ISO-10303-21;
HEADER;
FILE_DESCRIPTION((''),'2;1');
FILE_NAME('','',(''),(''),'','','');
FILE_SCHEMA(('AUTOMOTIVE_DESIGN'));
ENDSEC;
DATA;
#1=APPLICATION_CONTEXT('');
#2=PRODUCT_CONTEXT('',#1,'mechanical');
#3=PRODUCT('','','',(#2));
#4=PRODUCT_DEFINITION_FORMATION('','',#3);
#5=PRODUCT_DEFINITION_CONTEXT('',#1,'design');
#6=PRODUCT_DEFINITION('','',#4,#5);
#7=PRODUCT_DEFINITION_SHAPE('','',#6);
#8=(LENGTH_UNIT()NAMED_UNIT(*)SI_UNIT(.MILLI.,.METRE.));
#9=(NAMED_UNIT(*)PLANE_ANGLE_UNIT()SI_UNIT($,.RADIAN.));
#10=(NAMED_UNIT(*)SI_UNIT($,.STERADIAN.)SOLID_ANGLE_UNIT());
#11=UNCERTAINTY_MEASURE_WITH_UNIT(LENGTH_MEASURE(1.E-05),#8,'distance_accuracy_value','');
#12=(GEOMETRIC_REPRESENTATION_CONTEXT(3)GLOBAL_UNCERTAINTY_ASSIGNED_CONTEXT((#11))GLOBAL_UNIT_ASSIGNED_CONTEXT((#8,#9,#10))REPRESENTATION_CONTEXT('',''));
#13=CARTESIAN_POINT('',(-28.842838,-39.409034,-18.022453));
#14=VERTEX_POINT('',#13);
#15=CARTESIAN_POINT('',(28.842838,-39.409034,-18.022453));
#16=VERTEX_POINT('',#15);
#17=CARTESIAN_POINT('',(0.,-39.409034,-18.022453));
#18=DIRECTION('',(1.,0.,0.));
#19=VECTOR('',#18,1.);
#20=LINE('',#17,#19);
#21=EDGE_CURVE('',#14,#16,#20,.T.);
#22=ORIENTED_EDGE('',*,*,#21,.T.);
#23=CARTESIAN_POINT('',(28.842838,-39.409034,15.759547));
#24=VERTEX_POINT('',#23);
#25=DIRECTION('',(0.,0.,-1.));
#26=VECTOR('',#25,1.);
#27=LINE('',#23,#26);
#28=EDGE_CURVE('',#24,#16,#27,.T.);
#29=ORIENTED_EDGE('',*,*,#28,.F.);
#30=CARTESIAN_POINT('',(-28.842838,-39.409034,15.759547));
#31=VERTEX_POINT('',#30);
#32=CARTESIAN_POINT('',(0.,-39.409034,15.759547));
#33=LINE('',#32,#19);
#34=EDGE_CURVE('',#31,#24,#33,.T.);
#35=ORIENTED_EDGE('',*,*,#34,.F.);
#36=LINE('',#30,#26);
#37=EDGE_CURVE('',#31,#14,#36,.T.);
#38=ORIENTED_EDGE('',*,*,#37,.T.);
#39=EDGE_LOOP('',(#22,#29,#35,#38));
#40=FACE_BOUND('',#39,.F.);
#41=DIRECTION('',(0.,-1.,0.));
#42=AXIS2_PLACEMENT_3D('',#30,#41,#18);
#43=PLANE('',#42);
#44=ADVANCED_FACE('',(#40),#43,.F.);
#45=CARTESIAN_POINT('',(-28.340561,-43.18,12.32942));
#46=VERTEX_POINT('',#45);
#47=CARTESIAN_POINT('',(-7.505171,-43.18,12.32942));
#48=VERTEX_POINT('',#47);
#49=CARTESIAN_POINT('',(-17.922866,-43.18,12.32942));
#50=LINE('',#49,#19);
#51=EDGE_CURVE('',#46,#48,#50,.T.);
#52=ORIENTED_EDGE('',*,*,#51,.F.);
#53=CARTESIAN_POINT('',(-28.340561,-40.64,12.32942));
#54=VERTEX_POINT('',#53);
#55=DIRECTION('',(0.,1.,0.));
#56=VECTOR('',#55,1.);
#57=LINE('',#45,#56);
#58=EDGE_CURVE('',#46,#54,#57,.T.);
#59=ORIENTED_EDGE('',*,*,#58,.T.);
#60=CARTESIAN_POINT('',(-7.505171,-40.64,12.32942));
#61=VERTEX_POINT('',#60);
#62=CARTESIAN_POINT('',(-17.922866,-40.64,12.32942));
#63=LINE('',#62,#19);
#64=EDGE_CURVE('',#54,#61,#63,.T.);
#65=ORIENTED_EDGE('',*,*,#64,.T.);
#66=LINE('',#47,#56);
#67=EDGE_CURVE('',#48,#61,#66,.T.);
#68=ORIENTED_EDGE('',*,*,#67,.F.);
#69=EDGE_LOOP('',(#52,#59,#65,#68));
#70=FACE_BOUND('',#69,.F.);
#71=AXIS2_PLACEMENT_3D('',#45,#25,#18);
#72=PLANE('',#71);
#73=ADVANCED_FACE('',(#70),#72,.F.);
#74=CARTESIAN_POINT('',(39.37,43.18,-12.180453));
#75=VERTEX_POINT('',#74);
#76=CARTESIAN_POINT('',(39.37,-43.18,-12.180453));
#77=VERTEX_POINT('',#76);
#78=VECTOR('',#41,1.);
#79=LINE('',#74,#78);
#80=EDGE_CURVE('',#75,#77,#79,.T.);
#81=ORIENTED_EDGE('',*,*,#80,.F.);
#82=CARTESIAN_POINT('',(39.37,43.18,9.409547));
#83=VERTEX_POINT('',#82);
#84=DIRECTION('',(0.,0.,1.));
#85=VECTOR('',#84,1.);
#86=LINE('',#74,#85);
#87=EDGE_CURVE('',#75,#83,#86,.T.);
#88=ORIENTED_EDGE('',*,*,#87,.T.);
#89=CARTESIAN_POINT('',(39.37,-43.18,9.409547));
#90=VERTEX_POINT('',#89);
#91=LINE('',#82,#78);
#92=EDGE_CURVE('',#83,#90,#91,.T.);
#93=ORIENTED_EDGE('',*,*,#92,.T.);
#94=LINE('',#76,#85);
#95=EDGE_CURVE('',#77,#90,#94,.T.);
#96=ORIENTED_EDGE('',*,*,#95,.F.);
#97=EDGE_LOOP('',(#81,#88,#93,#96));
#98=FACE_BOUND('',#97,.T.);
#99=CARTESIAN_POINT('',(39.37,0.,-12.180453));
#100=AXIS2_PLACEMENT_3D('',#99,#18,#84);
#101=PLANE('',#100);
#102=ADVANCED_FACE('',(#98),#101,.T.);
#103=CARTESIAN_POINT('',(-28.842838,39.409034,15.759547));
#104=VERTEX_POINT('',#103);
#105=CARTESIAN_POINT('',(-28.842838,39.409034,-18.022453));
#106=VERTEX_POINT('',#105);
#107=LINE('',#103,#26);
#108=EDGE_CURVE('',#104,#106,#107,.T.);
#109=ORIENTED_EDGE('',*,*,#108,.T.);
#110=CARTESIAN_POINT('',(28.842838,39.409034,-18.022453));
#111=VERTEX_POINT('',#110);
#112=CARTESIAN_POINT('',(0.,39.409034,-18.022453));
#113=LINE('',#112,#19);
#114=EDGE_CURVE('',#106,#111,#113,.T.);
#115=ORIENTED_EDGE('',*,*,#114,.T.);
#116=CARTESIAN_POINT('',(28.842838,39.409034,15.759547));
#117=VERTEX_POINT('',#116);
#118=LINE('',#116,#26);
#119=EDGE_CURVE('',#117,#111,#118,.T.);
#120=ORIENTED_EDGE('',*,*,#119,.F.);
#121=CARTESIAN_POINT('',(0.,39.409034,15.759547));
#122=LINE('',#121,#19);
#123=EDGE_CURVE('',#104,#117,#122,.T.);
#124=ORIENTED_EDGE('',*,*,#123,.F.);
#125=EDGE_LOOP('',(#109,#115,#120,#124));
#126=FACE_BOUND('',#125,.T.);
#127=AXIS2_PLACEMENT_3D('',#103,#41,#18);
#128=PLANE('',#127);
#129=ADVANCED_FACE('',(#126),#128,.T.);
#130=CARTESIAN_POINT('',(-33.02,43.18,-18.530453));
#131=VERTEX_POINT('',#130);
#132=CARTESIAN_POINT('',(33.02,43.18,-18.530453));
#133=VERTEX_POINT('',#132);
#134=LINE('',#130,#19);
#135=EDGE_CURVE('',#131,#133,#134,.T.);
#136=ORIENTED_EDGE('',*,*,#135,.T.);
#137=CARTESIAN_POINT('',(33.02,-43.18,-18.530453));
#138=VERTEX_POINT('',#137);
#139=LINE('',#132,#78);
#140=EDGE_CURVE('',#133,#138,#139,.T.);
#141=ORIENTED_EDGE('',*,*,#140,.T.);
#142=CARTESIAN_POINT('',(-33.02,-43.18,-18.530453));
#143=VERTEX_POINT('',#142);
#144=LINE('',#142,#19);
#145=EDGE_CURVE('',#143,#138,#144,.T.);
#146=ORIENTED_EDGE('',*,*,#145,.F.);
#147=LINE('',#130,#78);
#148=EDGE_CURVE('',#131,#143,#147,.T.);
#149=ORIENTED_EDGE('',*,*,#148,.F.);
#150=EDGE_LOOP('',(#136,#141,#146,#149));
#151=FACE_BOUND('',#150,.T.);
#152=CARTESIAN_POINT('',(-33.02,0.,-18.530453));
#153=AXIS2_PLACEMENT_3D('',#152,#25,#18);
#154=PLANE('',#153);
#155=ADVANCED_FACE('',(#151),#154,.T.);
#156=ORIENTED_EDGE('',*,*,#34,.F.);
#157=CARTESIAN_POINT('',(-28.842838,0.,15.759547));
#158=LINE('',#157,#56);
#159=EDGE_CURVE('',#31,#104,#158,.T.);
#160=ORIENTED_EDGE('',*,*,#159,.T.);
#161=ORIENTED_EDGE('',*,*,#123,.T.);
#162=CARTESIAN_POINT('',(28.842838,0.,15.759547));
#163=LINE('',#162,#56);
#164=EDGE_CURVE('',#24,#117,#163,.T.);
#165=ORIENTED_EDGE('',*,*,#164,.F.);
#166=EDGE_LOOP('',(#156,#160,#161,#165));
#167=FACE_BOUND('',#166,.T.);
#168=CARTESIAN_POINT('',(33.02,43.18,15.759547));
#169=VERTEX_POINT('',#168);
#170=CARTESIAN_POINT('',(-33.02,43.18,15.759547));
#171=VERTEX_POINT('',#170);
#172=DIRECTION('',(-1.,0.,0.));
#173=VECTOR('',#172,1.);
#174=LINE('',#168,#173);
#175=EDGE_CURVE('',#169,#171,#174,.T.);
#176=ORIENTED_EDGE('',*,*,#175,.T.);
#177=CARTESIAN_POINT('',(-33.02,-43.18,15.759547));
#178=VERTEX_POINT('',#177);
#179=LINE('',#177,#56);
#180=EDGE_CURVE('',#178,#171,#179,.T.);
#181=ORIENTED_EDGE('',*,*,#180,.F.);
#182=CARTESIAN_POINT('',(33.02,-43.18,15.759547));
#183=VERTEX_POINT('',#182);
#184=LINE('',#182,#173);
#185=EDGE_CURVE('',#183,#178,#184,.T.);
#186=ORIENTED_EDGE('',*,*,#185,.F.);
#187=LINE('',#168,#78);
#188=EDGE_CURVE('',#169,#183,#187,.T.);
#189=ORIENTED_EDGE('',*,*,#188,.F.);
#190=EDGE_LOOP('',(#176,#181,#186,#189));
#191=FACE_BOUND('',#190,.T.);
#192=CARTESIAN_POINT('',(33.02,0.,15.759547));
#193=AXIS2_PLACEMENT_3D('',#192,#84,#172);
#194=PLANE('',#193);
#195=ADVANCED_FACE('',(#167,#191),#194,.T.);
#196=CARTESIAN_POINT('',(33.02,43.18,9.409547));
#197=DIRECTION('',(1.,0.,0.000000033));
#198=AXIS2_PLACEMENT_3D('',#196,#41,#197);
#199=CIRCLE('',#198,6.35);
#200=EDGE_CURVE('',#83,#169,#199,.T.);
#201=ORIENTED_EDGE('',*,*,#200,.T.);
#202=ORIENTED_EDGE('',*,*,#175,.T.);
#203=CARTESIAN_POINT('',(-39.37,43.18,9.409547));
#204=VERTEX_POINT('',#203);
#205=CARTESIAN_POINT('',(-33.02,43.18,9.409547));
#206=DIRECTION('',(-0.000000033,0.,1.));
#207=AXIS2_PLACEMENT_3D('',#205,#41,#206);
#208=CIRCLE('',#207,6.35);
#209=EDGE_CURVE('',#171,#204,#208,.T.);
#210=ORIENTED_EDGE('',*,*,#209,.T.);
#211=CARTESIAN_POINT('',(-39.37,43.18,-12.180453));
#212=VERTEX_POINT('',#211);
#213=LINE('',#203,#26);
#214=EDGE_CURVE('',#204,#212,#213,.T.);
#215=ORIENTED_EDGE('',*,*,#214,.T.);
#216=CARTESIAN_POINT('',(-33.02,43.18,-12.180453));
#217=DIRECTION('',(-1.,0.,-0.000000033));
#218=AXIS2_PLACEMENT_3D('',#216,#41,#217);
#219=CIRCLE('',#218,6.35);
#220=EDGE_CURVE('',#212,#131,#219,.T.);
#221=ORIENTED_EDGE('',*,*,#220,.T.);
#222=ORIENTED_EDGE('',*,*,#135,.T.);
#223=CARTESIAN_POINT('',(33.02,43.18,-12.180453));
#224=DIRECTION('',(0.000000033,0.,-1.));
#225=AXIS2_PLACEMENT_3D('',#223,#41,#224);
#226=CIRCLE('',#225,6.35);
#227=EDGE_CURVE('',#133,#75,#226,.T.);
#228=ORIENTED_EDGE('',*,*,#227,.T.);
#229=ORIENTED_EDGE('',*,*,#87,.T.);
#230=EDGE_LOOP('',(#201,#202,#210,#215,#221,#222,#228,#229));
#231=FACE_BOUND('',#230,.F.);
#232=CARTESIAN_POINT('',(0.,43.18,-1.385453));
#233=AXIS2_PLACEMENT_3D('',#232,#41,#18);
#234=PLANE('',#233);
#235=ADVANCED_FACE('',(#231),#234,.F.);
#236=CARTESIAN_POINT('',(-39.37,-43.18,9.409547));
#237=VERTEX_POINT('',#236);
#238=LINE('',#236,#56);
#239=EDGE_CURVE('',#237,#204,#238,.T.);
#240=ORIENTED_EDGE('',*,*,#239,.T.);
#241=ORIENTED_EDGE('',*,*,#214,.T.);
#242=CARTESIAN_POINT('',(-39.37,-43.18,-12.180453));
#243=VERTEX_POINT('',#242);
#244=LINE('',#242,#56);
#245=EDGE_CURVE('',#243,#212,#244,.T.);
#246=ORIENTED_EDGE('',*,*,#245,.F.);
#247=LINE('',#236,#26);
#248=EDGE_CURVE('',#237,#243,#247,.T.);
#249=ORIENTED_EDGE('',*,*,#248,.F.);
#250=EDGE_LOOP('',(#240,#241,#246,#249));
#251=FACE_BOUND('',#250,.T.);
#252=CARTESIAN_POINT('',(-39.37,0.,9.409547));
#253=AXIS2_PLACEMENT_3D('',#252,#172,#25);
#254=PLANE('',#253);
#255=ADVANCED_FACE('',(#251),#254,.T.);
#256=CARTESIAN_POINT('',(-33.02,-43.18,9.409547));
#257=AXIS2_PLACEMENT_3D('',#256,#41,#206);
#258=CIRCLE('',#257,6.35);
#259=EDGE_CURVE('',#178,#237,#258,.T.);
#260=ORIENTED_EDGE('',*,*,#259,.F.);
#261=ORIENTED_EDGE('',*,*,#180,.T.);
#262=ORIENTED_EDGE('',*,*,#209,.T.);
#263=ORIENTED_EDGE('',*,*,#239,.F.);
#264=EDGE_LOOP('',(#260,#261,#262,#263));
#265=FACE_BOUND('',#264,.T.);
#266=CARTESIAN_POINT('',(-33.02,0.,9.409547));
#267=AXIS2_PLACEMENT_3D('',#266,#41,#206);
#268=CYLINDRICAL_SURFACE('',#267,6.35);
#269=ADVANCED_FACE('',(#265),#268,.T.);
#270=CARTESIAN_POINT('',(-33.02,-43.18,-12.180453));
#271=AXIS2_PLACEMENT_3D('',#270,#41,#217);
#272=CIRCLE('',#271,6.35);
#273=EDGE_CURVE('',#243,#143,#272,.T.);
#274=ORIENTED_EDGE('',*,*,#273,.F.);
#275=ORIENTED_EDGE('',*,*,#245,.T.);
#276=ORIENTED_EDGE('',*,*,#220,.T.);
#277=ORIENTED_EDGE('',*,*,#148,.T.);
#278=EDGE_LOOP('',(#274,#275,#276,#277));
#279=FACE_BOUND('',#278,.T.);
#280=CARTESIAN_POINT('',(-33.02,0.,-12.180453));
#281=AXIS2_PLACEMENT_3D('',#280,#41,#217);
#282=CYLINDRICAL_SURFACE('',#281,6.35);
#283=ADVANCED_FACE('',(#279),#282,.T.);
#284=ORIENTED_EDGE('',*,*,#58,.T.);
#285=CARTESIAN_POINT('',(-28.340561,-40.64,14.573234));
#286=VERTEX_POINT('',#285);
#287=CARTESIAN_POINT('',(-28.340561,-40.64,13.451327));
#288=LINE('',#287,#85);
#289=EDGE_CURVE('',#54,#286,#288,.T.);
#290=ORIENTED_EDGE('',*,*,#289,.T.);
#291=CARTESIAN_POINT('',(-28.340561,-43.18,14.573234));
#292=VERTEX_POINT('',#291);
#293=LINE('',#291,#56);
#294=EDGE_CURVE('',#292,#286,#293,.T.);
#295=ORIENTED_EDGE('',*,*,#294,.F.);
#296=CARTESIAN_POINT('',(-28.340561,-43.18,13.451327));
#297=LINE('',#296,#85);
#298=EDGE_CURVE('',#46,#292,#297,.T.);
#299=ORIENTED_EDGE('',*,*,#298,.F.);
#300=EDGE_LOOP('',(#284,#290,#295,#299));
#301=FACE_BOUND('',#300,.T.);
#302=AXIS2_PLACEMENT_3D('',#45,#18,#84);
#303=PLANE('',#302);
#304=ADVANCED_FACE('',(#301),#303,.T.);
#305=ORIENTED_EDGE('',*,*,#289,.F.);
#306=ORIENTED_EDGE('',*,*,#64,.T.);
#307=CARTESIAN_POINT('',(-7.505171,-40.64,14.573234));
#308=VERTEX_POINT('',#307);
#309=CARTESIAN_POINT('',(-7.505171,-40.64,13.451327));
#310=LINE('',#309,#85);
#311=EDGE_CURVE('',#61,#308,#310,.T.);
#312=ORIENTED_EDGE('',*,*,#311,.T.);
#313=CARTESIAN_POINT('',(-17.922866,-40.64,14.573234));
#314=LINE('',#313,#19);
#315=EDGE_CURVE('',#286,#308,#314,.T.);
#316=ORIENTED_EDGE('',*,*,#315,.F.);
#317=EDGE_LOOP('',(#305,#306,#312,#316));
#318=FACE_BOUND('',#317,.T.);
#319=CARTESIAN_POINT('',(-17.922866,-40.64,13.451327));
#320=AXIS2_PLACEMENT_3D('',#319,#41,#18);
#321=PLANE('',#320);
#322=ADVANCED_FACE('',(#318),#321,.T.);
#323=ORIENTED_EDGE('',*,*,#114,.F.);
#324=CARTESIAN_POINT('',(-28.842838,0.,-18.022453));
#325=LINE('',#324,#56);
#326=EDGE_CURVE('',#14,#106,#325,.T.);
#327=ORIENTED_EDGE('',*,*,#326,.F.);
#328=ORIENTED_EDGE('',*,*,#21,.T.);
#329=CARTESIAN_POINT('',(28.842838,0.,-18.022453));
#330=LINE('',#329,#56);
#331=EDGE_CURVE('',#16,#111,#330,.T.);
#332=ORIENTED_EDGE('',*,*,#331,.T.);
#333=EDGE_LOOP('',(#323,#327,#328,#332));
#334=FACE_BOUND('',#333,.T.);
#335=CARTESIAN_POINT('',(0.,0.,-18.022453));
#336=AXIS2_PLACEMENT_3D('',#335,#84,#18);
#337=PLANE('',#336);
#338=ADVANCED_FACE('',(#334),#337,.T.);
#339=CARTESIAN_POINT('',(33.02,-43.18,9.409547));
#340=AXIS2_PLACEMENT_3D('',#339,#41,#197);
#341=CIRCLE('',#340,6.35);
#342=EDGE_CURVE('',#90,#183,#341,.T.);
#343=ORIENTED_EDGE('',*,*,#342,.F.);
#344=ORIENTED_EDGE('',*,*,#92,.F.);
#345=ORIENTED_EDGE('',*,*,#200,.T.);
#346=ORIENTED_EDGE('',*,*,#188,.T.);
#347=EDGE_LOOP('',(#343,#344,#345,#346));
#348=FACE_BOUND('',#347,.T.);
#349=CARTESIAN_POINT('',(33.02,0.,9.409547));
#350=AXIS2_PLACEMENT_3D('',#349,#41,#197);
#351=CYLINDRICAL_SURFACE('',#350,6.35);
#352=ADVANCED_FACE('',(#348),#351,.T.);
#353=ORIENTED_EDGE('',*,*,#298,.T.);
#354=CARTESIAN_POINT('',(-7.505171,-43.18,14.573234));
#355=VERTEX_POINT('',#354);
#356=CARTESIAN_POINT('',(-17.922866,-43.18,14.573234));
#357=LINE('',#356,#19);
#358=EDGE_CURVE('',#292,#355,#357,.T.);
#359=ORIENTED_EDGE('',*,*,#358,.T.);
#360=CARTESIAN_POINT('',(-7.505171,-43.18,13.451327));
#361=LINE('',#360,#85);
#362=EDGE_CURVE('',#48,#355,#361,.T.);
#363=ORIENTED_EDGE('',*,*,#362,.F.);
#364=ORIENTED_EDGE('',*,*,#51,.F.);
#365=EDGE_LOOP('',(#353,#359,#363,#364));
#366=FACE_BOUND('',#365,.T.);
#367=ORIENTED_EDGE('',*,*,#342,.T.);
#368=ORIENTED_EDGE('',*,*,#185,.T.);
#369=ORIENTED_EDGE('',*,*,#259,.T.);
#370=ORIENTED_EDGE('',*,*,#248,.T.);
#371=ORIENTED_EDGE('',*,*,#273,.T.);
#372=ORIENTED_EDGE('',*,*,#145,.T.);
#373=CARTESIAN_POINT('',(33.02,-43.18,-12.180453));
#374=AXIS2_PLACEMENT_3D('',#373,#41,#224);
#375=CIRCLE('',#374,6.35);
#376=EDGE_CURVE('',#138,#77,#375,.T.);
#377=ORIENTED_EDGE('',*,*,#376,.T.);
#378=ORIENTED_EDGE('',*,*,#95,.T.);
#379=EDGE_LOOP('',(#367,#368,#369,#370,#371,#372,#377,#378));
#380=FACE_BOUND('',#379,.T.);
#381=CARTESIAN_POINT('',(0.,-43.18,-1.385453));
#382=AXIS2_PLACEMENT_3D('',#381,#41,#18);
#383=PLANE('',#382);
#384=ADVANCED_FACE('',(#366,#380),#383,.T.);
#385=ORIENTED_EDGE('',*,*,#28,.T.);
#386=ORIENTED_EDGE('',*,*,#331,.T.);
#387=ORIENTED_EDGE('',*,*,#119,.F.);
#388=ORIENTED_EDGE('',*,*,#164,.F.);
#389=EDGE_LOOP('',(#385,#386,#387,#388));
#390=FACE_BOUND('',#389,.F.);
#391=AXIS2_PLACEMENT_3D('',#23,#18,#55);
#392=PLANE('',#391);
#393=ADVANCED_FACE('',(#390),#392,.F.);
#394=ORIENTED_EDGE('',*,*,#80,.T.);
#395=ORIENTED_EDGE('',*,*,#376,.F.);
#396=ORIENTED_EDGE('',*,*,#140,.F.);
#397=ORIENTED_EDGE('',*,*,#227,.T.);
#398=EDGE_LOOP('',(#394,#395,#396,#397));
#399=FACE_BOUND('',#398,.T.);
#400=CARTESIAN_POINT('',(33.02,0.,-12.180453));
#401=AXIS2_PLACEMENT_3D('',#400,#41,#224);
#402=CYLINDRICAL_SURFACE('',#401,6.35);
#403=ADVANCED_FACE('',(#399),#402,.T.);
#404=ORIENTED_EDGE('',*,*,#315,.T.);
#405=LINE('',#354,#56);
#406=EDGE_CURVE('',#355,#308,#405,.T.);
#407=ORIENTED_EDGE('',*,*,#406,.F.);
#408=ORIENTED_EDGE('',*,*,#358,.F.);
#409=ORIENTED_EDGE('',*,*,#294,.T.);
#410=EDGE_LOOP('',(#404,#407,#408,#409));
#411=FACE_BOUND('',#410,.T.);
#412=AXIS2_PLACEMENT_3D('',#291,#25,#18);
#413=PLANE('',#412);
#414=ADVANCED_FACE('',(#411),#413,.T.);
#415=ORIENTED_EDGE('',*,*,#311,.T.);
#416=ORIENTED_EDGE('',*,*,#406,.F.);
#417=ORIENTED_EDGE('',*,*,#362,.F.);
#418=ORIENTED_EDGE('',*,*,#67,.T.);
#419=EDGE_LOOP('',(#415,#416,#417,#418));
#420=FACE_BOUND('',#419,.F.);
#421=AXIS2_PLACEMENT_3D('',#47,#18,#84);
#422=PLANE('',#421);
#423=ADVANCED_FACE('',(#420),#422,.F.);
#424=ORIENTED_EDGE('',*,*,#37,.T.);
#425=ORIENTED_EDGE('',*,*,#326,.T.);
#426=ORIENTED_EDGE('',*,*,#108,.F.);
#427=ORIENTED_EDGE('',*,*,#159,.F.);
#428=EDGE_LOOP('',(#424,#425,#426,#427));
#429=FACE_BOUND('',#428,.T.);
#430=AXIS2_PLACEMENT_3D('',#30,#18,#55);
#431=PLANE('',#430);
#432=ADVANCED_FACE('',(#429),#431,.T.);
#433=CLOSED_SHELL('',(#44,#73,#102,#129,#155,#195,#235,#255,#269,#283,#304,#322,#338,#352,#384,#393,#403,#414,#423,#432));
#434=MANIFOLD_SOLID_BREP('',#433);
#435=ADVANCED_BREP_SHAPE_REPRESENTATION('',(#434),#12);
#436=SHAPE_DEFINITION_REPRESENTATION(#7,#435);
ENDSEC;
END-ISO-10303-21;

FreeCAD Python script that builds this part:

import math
import FreeCAD as App
import Part
import Sketcher
from FreeCAD import Vector
Q = App.Units.Quantity


def add_polygon(sketch, points):
    """Adds a closed chain of lines whose ends are joined by coincident constraints."""
    first, n = sketch.GeometryCount, len(points)
    for a, b in zip(points, points[1:] + points[:1]):
        sketch.addGeometry(Part.LineSegment(App.Vector(*a, 0), App.Vector(*b, 0)), False)
    for i in range(n):
        sketch.addConstraint(Sketcher.Constraint("Coincident", first + i, 2, first + (i + 1) % n, 1))

doc = App.newDocument("Part")
body = doc.addObject("PartDesign::Body", "Body")

# Sketch on XZ plane
sketch1 = doc.addObject("Sketcher::SketchObject", "Sketch")
body.addObject(sketch1)
sketch1.AttachmentSupport = (doc.XZ_Plane, [""])
sketch1.MapMode = "FlatFace"
sketch1.addGeometry([
    Part.ArcOfCircle(Part.Circle(Vector(-33.02, -12.180453, 0), Vector(0, 0, 1), 6.35), math.radians(-179.999998), math.radians(-90.000002)),  # 0
    Part.LineSegment(Vector(-33.02, -18.530453, 0), Vector(33.02, -18.530453, 0)),  # 1
    Part.ArcOfCircle(Part.Circle(Vector(33.02, -12.180453, 0), Vector(0, 0, 1), 6.35), math.radians(-89.999998), math.radians(-0.000002)),  # 2
    Part.LineSegment(Vector(39.37, -12.180453, 0), Vector(39.37, 9.409547, 0)),  # 3
    Part.ArcOfCircle(Part.Circle(Vector(33.02, 9.409547, 0), Vector(0, 0, 1), 6.35), math.radians(0.000002), math.radians(89.999998)),  # 4
    Part.LineSegment(Vector(33.02, 15.759547, 0), Vector(-33.02, 15.759547, 0)),  # 5
    Part.ArcOfCircle(Part.Circle(Vector(-33.02, 9.409547, 0), Vector(0, 0, 1), 6.35), math.radians(90.000002), math.radians(179.999998)),  # 6
    Part.LineSegment(Vector(-39.37, 9.409547, 0), Vector(-39.37, -12.180453, 0)),  # 7
], False)
sketch1.addConstraint([
    Sketcher.Constraint("Tangent", 0, 2, 1, 1),
    Sketcher.Constraint("Tangent", 1, 2, 2, 1),
    Sketcher.Constraint("Tangent", 2, 2, 3, 1),
    Sketcher.Constraint("Tangent", 3, 2, 4, 1),
    Sketcher.Constraint("Tangent", 4, 2, 5, 1),
    Sketcher.Constraint("Tangent", 5, 2, 6, 1),
    Sketcher.Constraint("Tangent", 6, 2, 7, 1),
    Sketcher.Constraint("Tangent", 7, 2, 0, 1),
    Sketcher.Constraint("Horizontal", 1),
    Sketcher.Constraint("Vertical", 3),
    Sketcher.Constraint("Horizontal", 5),
    Sketcher.Constraint("Vertical", 7),
    Sketcher.Constraint("Equal", 0, 2),
    Sketcher.Constraint("Equal", 2, 4),
    Sketcher.Constraint("Equal", 4, 6),
    Sketcher.Constraint("Radius", 0, Q("0.25 in")),
    Sketcher.Constraint("DistanceX", 1, 1, 1, 2, Q("2.6 in")),
    Sketcher.Constraint("DistanceY", 3, 1, 3, 2, Q("0.85 in")),
    Sketcher.Constraint("DistanceX", 0, 3, -1, 1, Q("1.3 in")),
    Sketcher.Constraint("DistanceY", 0, 3, -1, 1, Q("12.180453 mm")),
])
pad1 = doc.addObject("PartDesign::Pad", "Pad")
body.addObject(pad1)
pad1.Profile = sketch1
pad1.Length = Q("3.4 in")
pad1.Midplane = True

# Sketch on XY plane
sketch2 = doc.addObject("Sketcher::SketchObject", "Sketch001")
body.addObject(sketch2)
sketch2.AttachmentSupport = (doc.XY_Plane, [""])
sketch2.MapMode = "FlatFace"
sketch2.AttachmentOffset = App.Placement(Vector(0, 0, 15.759547), App.Rotation())
add_polygon(sketch2, [(-28.842838, 39.409034), (-28.842838, -39.409034), (28.842838, -39.409034), (28.842838, 39.409034)])  # lines 0-3
sketch2.addConstraint([
    Sketcher.Constraint("Vertical", 0),
    Sketcher.Constraint("Horizontal", 1),
    Sketcher.Constraint("Vertical", 2),
    Sketcher.Constraint("Horizontal", 3),
    Sketcher.Constraint("Symmetric", 0, 2, 2, 2, -1, 1),
    Sketcher.Constraint("DistanceX", 1, 1, 1, 2, Q("57.685676 mm")),
    Sketcher.Constraint("DistanceY", 0, 2, 0, 1, Q("78.818068 mm")),
])
pocket1 = doc.addObject("PartDesign::Pocket", "Pocket")
body.addObject(pocket1)
pocket1.Profile = sketch2
pocket1.Length = Q("1.33 in")

# Sketch on XZ plane
sketch3 = doc.addObject("Sketcher::SketchObject", "Sketch002")
body.addObject(sketch3)
sketch3.AttachmentSupport = (doc.XZ_Plane, [""])
sketch3.MapMode = "FlatFace"
sketch3.AttachmentOffset = App.Placement(Vector(0, 0, 1.7 * 25.4), App.Rotation())
add_polygon(sketch3, [(-28.340561, 14.573234), (-28.340561, 12.32942), (-7.505171, 12.32942), (-7.505171, 14.573234)])  # lines 0-3
sketch3.addConstraint([
    Sketcher.Constraint("Vertical", 0),
    Sketcher.Constraint("Horizontal", 1),
    Sketcher.Constraint("Vertical", 2),
    Sketcher.Constraint("Horizontal", 3),
    Sketcher.Constraint("DistanceX", 1, 1, 1, 2, Q("20.835391 mm")),
    Sketcher.Constraint("DistanceY", 0, 2, 0, 1, Q("2.243813 mm")),
    Sketcher.Constraint("DistanceX", 0, 2, -1, 1, Q("28.340561 mm")),
    Sketcher.Constraint("DistanceY", -1, 1, 0, 2, Q("12.32942 mm")),
])
pocket2 = doc.addObject("PartDesign::Pocket", "Pocket001")
body.addObject(pocket2)
pocket2.Profile = sketch3
pocket2.Length = Q("0.1 in")

doc.recompute()
